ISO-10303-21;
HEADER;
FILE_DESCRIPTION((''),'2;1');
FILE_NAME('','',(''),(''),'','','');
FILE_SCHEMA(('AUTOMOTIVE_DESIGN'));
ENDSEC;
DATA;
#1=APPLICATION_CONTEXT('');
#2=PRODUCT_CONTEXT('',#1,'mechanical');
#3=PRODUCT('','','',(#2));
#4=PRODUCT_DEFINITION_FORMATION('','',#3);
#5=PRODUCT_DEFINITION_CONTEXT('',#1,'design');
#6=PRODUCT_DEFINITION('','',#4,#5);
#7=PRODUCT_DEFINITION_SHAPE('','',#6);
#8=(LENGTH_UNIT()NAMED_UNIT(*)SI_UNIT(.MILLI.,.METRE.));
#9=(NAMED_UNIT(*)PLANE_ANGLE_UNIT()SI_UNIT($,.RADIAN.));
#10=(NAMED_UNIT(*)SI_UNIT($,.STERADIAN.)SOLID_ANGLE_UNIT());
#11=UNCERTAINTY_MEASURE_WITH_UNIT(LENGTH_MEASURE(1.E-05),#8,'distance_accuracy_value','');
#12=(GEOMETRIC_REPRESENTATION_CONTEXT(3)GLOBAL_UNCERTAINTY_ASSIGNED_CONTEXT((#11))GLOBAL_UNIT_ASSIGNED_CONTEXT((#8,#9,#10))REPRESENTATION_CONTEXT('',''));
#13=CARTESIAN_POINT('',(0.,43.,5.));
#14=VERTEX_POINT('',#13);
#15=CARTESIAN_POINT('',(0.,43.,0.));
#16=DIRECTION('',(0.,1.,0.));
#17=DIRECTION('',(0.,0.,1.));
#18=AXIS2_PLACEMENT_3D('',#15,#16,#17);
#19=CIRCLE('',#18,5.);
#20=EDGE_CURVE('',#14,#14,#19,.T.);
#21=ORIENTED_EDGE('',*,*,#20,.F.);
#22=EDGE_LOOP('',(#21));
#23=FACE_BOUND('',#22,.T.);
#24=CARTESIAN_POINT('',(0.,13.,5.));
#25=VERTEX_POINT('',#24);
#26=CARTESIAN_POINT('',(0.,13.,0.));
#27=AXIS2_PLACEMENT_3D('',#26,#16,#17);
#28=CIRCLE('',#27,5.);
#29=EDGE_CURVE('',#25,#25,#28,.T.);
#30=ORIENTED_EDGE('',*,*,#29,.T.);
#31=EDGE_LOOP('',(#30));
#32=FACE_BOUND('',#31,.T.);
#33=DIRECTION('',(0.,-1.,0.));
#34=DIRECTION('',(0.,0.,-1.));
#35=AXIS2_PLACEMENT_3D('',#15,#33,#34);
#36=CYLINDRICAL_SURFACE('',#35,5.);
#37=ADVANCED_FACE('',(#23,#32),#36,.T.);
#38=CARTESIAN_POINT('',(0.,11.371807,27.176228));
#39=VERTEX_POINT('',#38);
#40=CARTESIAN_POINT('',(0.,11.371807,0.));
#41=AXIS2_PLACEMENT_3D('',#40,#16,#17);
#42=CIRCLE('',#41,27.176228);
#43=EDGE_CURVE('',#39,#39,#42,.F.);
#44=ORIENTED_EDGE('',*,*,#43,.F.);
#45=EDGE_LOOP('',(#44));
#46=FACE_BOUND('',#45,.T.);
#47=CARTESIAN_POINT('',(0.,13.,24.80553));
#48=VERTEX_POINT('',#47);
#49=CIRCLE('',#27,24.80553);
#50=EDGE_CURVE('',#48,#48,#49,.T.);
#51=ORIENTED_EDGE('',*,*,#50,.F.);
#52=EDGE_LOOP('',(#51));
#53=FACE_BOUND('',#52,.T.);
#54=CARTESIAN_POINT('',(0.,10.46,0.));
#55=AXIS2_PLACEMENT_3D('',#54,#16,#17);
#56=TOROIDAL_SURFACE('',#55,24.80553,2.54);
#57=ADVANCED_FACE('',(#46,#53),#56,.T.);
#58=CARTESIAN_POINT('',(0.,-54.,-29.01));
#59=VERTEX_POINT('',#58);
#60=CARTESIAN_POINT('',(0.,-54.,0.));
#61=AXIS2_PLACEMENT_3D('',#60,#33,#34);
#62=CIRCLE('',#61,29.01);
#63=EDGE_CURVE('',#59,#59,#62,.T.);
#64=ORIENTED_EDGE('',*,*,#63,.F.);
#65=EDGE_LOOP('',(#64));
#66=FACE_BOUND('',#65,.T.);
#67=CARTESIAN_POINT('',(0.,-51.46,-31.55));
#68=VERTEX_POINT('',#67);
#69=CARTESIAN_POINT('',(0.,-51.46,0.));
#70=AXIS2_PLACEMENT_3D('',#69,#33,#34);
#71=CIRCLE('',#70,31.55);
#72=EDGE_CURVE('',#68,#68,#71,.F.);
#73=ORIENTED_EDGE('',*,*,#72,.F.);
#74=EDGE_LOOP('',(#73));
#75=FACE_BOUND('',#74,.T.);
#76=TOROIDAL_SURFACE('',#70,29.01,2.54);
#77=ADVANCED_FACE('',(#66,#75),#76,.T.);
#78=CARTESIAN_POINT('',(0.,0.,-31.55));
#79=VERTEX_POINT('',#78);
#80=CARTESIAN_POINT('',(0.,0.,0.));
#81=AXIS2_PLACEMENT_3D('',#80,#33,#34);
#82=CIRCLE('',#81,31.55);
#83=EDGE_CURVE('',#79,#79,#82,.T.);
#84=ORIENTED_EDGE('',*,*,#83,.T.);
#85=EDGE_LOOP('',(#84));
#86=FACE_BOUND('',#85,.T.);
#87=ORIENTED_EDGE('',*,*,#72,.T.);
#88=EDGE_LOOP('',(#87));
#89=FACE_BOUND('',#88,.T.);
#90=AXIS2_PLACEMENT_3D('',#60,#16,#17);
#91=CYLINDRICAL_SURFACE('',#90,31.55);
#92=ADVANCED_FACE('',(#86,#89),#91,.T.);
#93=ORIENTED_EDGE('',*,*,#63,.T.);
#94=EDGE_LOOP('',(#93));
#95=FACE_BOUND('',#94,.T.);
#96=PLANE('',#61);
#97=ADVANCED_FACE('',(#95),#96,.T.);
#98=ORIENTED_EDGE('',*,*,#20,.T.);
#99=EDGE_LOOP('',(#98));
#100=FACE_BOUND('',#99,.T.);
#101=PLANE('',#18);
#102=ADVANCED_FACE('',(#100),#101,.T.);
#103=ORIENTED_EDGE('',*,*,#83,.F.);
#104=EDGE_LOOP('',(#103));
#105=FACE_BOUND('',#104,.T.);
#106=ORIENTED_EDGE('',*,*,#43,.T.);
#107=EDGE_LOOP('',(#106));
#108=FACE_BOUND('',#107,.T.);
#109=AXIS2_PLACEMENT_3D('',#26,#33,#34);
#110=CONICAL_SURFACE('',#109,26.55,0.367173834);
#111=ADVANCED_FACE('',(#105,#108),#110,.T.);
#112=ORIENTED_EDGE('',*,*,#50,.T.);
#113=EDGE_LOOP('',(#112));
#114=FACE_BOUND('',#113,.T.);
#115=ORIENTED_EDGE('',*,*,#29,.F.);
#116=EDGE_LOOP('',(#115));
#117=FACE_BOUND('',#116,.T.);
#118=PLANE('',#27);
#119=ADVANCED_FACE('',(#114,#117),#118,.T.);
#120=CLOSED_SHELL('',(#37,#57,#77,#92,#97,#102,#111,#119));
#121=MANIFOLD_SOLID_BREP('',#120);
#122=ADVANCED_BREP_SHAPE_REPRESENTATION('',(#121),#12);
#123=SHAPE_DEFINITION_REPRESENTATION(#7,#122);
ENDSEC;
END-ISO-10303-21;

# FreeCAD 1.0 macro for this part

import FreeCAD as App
import Part
import Sketcher
Q = App.Units.Quantity


def edges_at(feature, points):
    """Names of the edges that pass closest to the given points."""
    edges = feature.Shape.Edges
    near = lambda p: min(range(len(edges)), key=lambda i: edges[i].distToShape(Part.Vertex(*p))[0])
    return sorted({f"Edge{near(p) + 1}" for p in points})


def add_polygon(sketch, points):
    """Adds a closed chain of lines whose ends are joined by coincident constraints."""
    first, n = sketch.GeometryCount, len(points)
    for a, b in zip(points, points[1:] + points[:1]):
        sketch.addGeometry(Part.LineSegment(App.Vector(*a, 0), App.Vector(*b, 0)), False)
    for i in range(n):
        sketch.addConstraint(Sketcher.Constraint("Coincident", first + i, 2, first + (i + 1) % n, 1))

doc = App.newDocument("Part")
body = doc.addObject("PartDesign::Body", "Body")

# Sketch on XZ plane
sketch1 = doc.addObject("Sketcher::SketchObject", "Sketch")
body.addObject(sketch1)
sketch1.AttachmentSupport = (doc.XZ_Plane, [""])
sketch1.MapMode = "FlatFace"
sketch1.addGeometry(Part.Circle(App.Vector(0, 0, 0), App.Vector(0, 0, 1), 32), False)
sketch1.addConstraint([
    Sketcher.Constraint("Coincident", 0, 3, -1, 1),
    Sketcher.Constraint("Diameter", 0, Q("63.1 mm")),
])
pad1 = doc.addObject("PartDesign::Pad", "Pad")
body.addObject(pad1)
pad1.Profile = sketch1
pad1.Length = 13
pad1.Reversed = True

# Sketch on XY plane
sketch2 = doc.addObject("Sketcher::SketchObject", "Sketch001")
body.addObject(sketch2)
sketch2.AttachmentSupport = (doc.XY_Plane, [""])
sketch2.MapMode = "FlatFace"
add_polygon(sketch2, [(32, 13), (27, 13), (32, 0)])  # lines 0-2
sketch2.addConstraint([
    Sketcher.Constraint("Horizontal", 0),
    Sketcher.Constraint("Vertical", 2),
    Sketcher.Constraint("PointOnObject", 1, 2, -1),
    Sketcher.Constraint("DistanceX", 0, 2, 0, 1, Q("5 mm")),
    Sketcher.Constraint("DistanceY", 2, 1, 2, 2, Q("13 mm")),
    Sketcher.Constraint("DistanceX", -1, 1, 0, 2, Q("26.55 mm")),
])
groove = doc.addObject("PartDesign::Groove", "Groove")
body.addObject(groove)
groove.Profile = sketch2
groove.ReferenceAxis = (sketch2, ["V_Axis"])
groove.Angle = 360

# Sketch on XZ plane
sketch3 = doc.addObject("Sketcher::SketchObject", "Sketch002")
body.addObject(sketch3)
sketch3.AttachmentSupport = (doc.XZ_Plane, [""])
sketch3.MapMode = "FlatFace"
sketch3.addGeometry(Part.Circle(App.Vector(0, 0, 0), App.Vector(0, 0, 1), 32), False)
sketch3.addConstraint([
    Sketcher.Constraint("Coincident", 0, 3, -1, 1),
    Sketcher.Constraint("Diameter", 0, Q("63.1 mm")),
])
pad2 = doc.addObject("PartDesign::Pad", "Pad001")
body.addObject(pad2)
pad2.Profile = sketch3
pad2.Length = 54
doc.recompute()

fillet = doc.addObject("PartDesign::Fillet", "Fillet")
body.addObject(fillet)
fillet.Base = (pad2, edges_at(pad2, [(-31.55, -54, 0), (-26.55, 13, 0)]))
fillet.Radius = 2.54

# Sketch on XZ plane
sketch4 = doc.addObject("Sketcher::SketchObject", "Sketch003")
body.addObject(sketch4)
sketch4.AttachmentSupport = (doc.XZ_Plane, [""])
sketch4.MapMode = "FlatFace"
sketch4.AttachmentOffset = App.Placement(App.Vector(0, 0, -13), App.Rotation())
sketch4.addGeometry(Part.Circle(App.Vector(0, 0, 0), App.Vector(0, 0, 1), 5), False)
sketch4.addConstraint([
    Sketcher.Constraint("Coincident", 0, 3, -1, 1),
    Sketcher.Constraint("Diameter", 0, Q("10 mm")),
])
pad3 = doc.addObject("PartDesign::Pad", "Pad002")
body.addObject(pad3)
pad3.Profile = sketch4
pad3.Length = 30
pad3.Reversed = True

doc.recompute()
